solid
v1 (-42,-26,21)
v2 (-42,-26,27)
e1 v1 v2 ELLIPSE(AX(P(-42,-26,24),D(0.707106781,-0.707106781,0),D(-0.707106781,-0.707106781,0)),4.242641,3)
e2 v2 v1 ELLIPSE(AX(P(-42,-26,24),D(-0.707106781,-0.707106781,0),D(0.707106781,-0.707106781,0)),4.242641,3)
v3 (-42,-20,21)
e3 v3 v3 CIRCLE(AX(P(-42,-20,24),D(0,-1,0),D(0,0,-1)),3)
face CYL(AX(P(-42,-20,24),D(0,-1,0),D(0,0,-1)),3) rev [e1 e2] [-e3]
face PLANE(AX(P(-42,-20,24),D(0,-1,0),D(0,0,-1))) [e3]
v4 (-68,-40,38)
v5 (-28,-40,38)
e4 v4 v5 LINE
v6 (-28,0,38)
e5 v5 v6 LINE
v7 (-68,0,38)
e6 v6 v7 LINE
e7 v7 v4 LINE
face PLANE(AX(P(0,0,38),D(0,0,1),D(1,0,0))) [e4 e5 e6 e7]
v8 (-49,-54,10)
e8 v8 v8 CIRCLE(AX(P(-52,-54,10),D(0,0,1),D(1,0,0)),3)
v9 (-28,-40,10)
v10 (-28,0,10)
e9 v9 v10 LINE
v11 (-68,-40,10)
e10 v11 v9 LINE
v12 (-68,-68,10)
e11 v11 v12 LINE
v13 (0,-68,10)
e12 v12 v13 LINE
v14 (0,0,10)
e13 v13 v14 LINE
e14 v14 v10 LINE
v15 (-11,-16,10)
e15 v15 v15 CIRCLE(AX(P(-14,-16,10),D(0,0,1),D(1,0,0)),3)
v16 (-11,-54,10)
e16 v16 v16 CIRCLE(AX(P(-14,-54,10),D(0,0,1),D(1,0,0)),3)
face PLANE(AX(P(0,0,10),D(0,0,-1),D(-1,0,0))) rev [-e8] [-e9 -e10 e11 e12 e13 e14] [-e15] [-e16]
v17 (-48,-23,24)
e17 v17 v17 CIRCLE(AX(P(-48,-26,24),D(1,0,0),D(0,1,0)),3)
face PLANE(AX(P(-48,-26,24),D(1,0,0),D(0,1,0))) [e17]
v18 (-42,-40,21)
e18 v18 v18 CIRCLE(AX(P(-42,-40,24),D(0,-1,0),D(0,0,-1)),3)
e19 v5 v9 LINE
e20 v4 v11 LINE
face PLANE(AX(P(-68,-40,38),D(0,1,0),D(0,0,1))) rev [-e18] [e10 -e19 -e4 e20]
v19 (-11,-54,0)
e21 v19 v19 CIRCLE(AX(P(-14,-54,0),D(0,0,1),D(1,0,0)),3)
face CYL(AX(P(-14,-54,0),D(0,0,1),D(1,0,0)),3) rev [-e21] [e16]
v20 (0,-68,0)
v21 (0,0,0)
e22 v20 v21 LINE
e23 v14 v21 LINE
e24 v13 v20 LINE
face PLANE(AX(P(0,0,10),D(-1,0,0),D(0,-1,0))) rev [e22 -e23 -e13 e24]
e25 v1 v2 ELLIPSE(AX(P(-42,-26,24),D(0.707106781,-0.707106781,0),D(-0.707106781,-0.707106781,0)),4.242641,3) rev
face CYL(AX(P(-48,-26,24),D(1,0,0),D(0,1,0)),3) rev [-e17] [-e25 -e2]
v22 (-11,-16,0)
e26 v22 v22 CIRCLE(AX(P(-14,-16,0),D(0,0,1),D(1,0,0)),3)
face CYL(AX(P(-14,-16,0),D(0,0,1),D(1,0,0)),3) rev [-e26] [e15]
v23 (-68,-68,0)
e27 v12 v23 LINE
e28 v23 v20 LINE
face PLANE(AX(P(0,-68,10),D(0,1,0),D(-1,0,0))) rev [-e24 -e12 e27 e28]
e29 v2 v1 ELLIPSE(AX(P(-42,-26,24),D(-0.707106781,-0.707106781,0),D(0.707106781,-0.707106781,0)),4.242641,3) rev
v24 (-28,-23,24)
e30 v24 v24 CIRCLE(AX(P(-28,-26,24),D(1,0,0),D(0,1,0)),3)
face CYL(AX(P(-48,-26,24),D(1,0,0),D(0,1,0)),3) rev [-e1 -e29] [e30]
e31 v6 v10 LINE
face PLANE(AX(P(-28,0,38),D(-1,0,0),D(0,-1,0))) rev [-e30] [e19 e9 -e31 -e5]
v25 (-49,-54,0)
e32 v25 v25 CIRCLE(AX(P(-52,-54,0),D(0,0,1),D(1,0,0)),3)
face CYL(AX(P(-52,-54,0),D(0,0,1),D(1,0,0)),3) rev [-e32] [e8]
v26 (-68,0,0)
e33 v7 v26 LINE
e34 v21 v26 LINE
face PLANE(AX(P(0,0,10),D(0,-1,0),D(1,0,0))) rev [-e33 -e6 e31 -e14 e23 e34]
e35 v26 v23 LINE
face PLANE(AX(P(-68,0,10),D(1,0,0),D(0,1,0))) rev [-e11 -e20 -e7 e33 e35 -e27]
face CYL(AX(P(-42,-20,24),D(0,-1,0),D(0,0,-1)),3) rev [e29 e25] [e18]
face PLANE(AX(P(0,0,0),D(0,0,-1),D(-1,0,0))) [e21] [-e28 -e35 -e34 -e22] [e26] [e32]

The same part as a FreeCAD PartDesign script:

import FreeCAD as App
import Part
import Sketcher
from FreeCAD import Vector

doc = App.newDocument("Part")
body = doc.addObject("PartDesign::Body", "Body")

# Sketch on XY plane
sketch1 = body.newObject("Sketcher::SketchObject", "Sketch")
sketch1.AttachmentSupport = (doc.getObject("XY_Plane"), [""])
sketch1.MapMode = "FlatFace"
sketch1.addGeometry(Part.LineSegment(Vector(-68, 0, 0), Vector(-68, -68, 0)), False)
sketch1.addGeometry(Part.LineSegment(Vector(-68, -68, 0), Vector(0, -68, 0)), False)
sketch1.addGeometry(Part.LineSegment(Vector(0, -68, 0), Vector(0, 0, 0)), False)
sketch1.addGeometry(Part.LineSegment(Vector(0, 0, 0), Vector(-68, 0, 0)), False)
sketch1.addConstraint(Sketcher.Constraint("Coincident", 0, 2, 1, 1))
sketch1.addConstraint(Sketcher.Constraint("Coincident", 1, 2, 2, 1))
sketch1.addConstraint(Sketcher.Constraint("Coincident", 2, 2, 3, 1))
sketch1.addConstraint(Sketcher.Constraint("Coincident", 3, 2, 0, 1))
sketch1.addConstraint(Sketcher.Constraint("Vertical", 0))
sketch1.addConstraint(Sketcher.Constraint("Horizontal", 1))
sketch1.addConstraint(Sketcher.Constraint("Vertical", 2))
sketch1.addConstraint(Sketcher.Constraint("Horizontal", 3))
sketch1.addConstraint(Sketcher.Constraint("Coincident", 2, 2, -1, 1))
sketch1.addConstraint(Sketcher.Constraint("Equal", 3, 0))
sketch1.addConstraint(Sketcher.Constraint("DistanceX", 1, 1, 1, 2, 68.0))
pad1 = body.newObject("PartDesign::Pad", "Pad")
pad1.Profile = sketch1
pad1.Length = 10

# Sketch on XY plane
sketch2 = body.newObject("Sketcher::SketchObject", "Sketch001")
sketch2.AttachmentSupport = (doc.getObject("XY_Plane"), [""])
sketch2.MapMode = "FlatFace"
sketch2.AttachmentOffset = App.Placement(Vector(0, 0, 10), App.Rotation())
sketch2.addGeometry(Part.LineSegment(Vector(-68, 0, 0), Vector(-68, -40, 0)), False)
sketch2.addGeometry(Part.LineSegment(Vector(-68, -40, 0), Vector(-28, -40, 0)), False)
sketch2.addGeometry(Part.LineSegment(Vector(-28, -40, 0), Vector(-28, 0, 0)), False)
sketch2.addGeometry(Part.LineSegment(Vector(-28, 0, 0), Vector(-68, 0, 0)), False)
sketch2.addConstraint(Sketcher.Constraint("Coincident", 0, 2, 1, 1))
sketch2.addConstraint(Sketcher.Constraint("Coincident", 1, 2, 2, 1))
sketch2.addConstraint(Sketcher.Constraint("Coincident", 2, 2, 3, 1))
sketch2.addConstraint(Sketcher.Constraint("Coincident", 3, 2, 0, 1))
sketch2.addConstraint(Sketcher.Constraint("Vertical", 0))
sketch2.addConstraint(Sketcher.Constraint("Horizontal", 1))
sketch2.addConstraint(Sketcher.Constraint("Vertical", 2))
sketch2.addConstraint(Sketcher.Constraint("Horizontal", 3))
sketch2.addConstraint(Sketcher.Constraint("PointOnObject", 2, 2, -1))
sketch2.addConstraint(Sketcher.Constraint("Equal", 3, 0))
sketch2.addConstraint(Sketcher.Constraint("DistanceX", 1, 1, 1, 2, 40.0))
sketch2.addConstraint(Sketcher.Constraint("DistanceX", 0, 2, -1, 1, 68.0))
pad2 = body.newObject("PartDesign::Pad", "Pad001")
pad2.Profile = sketch2
pad2.Length = 28

# Sketch on XZ plane
sketch3 = body.newObject("Sketcher::SketchObject", "Sketch002")
sketch3.AttachmentSupport = (doc.getObject("XZ_Plane"), [""])
sketch3.MapMode = "FlatFace"
sketch3.AttachmentOffset = App.Placement(Vector(0, 0, 40), App.Rotation())
sketch3.addGeometry(Part.Circle(Vector(-42, 24, 0), Vector(0, 0, 1), 3), False)
sketch3.addConstraint(Sketcher.Constraint("Diameter", 0, 6.0))
sketch3.addConstraint(Sketcher.Constraint("DistanceX", 0, 3, -1, 1, 42.0))
sketch3.addConstraint(Sketcher.Constraint("DistanceY", -1, 1, 0, 3, 24.0))
pocket1 = body.newObject("PartDesign::Pocket", "Pocket")
pocket1.Profile = sketch3
pocket1.Length = 20

# Sketch on YZ plane
sketch4 = body.newObject("Sketcher::SketchObject", "Sketch003")
sketch4.AttachmentSupport = (doc.getObject("YZ_Plane"), [""])
sketch4.MapMode = "FlatFace"
sketch4.AttachmentOffset = App.Placement(Vector(0, 0, -28), App.Rotation())
sketch4.addGeometry(Part.Circle(Vector(-26, 24, 0), Vector(0, 0, 1), 3), False)
sketch4.addConstraint(Sketcher.Constraint("Diameter", 0, 6.0))
sketch4.addConstraint(Sketcher.Constraint("DistanceX", 0, 3, -1, 1, 26.0))
sketch4.addConstraint(Sketcher.Constraint("DistanceY", -1, 1, 0, 3, 24.0))
pocket2 = body.newObject("PartDesign::Pocket", "Pocket001")
pocket2.Profile = sketch4
pocket2.Length = 20

# Sketch on XY plane
sketch5 = body.newObject("Sketcher::SketchObject", "Sketch004")
sketch5.AttachmentSupport = (doc.getObject("XY_Plane"), [""])
sketch5.MapMode = "FlatFace"
sketch5.AttachmentOffset = App.Placement(Vector(0, 0, 10), App.Rotation())
sketch5.addGeometry(Part.Circle(Vector(-14, -54, 0), Vector(0, 0, 1), 3), False)
sketch5.addGeometry(Part.Circle(Vector(-14, -16, 0), Vector(0, 0, 1), 3), False)
sketch5.addGeometry(Part.Circle(Vector(-52, -54, 0), Vector(0, 0, 1), 3), False)
sketch5.addConstraint(Sketcher.Constraint("Equal", 0, 1))
sketch5.addConstraint(Sketcher.Constraint("Equal", 1, 2))
sketch5.addConstraint(Sketcher.Constraint("Horizontal", 0, 3, 2, 3))
sketch5.addConstraint(Sketcher.Constraint("Vertical", 0, 3, 1, 3))
sketch5.addConstraint(Sketcher.Constraint("Diameter", 0, 6.0))
sketch5.addConstraint(Sketcher.Constraint("DistanceX", 0, 3, -1, 1, 14.0))
sketch5.addConstraint(Sketcher.Constraint("DistanceY", 0, 3, -1, 1, 54.0))
sketch5.addConstraint(Sketcher.Constraint("DistanceY", 1, 3, -1, 1, 16.0))
sketch5.addConstraint(Sketcher.Constraint("DistanceX", 2, 3, -1, 1, 52.0))
pocket3 = body.newObject("PartDesign::Pocket", "Pocket002")
pocket3.Profile = sketch5
pocket3.Type = "ThroughAll"

doc.recompute()
